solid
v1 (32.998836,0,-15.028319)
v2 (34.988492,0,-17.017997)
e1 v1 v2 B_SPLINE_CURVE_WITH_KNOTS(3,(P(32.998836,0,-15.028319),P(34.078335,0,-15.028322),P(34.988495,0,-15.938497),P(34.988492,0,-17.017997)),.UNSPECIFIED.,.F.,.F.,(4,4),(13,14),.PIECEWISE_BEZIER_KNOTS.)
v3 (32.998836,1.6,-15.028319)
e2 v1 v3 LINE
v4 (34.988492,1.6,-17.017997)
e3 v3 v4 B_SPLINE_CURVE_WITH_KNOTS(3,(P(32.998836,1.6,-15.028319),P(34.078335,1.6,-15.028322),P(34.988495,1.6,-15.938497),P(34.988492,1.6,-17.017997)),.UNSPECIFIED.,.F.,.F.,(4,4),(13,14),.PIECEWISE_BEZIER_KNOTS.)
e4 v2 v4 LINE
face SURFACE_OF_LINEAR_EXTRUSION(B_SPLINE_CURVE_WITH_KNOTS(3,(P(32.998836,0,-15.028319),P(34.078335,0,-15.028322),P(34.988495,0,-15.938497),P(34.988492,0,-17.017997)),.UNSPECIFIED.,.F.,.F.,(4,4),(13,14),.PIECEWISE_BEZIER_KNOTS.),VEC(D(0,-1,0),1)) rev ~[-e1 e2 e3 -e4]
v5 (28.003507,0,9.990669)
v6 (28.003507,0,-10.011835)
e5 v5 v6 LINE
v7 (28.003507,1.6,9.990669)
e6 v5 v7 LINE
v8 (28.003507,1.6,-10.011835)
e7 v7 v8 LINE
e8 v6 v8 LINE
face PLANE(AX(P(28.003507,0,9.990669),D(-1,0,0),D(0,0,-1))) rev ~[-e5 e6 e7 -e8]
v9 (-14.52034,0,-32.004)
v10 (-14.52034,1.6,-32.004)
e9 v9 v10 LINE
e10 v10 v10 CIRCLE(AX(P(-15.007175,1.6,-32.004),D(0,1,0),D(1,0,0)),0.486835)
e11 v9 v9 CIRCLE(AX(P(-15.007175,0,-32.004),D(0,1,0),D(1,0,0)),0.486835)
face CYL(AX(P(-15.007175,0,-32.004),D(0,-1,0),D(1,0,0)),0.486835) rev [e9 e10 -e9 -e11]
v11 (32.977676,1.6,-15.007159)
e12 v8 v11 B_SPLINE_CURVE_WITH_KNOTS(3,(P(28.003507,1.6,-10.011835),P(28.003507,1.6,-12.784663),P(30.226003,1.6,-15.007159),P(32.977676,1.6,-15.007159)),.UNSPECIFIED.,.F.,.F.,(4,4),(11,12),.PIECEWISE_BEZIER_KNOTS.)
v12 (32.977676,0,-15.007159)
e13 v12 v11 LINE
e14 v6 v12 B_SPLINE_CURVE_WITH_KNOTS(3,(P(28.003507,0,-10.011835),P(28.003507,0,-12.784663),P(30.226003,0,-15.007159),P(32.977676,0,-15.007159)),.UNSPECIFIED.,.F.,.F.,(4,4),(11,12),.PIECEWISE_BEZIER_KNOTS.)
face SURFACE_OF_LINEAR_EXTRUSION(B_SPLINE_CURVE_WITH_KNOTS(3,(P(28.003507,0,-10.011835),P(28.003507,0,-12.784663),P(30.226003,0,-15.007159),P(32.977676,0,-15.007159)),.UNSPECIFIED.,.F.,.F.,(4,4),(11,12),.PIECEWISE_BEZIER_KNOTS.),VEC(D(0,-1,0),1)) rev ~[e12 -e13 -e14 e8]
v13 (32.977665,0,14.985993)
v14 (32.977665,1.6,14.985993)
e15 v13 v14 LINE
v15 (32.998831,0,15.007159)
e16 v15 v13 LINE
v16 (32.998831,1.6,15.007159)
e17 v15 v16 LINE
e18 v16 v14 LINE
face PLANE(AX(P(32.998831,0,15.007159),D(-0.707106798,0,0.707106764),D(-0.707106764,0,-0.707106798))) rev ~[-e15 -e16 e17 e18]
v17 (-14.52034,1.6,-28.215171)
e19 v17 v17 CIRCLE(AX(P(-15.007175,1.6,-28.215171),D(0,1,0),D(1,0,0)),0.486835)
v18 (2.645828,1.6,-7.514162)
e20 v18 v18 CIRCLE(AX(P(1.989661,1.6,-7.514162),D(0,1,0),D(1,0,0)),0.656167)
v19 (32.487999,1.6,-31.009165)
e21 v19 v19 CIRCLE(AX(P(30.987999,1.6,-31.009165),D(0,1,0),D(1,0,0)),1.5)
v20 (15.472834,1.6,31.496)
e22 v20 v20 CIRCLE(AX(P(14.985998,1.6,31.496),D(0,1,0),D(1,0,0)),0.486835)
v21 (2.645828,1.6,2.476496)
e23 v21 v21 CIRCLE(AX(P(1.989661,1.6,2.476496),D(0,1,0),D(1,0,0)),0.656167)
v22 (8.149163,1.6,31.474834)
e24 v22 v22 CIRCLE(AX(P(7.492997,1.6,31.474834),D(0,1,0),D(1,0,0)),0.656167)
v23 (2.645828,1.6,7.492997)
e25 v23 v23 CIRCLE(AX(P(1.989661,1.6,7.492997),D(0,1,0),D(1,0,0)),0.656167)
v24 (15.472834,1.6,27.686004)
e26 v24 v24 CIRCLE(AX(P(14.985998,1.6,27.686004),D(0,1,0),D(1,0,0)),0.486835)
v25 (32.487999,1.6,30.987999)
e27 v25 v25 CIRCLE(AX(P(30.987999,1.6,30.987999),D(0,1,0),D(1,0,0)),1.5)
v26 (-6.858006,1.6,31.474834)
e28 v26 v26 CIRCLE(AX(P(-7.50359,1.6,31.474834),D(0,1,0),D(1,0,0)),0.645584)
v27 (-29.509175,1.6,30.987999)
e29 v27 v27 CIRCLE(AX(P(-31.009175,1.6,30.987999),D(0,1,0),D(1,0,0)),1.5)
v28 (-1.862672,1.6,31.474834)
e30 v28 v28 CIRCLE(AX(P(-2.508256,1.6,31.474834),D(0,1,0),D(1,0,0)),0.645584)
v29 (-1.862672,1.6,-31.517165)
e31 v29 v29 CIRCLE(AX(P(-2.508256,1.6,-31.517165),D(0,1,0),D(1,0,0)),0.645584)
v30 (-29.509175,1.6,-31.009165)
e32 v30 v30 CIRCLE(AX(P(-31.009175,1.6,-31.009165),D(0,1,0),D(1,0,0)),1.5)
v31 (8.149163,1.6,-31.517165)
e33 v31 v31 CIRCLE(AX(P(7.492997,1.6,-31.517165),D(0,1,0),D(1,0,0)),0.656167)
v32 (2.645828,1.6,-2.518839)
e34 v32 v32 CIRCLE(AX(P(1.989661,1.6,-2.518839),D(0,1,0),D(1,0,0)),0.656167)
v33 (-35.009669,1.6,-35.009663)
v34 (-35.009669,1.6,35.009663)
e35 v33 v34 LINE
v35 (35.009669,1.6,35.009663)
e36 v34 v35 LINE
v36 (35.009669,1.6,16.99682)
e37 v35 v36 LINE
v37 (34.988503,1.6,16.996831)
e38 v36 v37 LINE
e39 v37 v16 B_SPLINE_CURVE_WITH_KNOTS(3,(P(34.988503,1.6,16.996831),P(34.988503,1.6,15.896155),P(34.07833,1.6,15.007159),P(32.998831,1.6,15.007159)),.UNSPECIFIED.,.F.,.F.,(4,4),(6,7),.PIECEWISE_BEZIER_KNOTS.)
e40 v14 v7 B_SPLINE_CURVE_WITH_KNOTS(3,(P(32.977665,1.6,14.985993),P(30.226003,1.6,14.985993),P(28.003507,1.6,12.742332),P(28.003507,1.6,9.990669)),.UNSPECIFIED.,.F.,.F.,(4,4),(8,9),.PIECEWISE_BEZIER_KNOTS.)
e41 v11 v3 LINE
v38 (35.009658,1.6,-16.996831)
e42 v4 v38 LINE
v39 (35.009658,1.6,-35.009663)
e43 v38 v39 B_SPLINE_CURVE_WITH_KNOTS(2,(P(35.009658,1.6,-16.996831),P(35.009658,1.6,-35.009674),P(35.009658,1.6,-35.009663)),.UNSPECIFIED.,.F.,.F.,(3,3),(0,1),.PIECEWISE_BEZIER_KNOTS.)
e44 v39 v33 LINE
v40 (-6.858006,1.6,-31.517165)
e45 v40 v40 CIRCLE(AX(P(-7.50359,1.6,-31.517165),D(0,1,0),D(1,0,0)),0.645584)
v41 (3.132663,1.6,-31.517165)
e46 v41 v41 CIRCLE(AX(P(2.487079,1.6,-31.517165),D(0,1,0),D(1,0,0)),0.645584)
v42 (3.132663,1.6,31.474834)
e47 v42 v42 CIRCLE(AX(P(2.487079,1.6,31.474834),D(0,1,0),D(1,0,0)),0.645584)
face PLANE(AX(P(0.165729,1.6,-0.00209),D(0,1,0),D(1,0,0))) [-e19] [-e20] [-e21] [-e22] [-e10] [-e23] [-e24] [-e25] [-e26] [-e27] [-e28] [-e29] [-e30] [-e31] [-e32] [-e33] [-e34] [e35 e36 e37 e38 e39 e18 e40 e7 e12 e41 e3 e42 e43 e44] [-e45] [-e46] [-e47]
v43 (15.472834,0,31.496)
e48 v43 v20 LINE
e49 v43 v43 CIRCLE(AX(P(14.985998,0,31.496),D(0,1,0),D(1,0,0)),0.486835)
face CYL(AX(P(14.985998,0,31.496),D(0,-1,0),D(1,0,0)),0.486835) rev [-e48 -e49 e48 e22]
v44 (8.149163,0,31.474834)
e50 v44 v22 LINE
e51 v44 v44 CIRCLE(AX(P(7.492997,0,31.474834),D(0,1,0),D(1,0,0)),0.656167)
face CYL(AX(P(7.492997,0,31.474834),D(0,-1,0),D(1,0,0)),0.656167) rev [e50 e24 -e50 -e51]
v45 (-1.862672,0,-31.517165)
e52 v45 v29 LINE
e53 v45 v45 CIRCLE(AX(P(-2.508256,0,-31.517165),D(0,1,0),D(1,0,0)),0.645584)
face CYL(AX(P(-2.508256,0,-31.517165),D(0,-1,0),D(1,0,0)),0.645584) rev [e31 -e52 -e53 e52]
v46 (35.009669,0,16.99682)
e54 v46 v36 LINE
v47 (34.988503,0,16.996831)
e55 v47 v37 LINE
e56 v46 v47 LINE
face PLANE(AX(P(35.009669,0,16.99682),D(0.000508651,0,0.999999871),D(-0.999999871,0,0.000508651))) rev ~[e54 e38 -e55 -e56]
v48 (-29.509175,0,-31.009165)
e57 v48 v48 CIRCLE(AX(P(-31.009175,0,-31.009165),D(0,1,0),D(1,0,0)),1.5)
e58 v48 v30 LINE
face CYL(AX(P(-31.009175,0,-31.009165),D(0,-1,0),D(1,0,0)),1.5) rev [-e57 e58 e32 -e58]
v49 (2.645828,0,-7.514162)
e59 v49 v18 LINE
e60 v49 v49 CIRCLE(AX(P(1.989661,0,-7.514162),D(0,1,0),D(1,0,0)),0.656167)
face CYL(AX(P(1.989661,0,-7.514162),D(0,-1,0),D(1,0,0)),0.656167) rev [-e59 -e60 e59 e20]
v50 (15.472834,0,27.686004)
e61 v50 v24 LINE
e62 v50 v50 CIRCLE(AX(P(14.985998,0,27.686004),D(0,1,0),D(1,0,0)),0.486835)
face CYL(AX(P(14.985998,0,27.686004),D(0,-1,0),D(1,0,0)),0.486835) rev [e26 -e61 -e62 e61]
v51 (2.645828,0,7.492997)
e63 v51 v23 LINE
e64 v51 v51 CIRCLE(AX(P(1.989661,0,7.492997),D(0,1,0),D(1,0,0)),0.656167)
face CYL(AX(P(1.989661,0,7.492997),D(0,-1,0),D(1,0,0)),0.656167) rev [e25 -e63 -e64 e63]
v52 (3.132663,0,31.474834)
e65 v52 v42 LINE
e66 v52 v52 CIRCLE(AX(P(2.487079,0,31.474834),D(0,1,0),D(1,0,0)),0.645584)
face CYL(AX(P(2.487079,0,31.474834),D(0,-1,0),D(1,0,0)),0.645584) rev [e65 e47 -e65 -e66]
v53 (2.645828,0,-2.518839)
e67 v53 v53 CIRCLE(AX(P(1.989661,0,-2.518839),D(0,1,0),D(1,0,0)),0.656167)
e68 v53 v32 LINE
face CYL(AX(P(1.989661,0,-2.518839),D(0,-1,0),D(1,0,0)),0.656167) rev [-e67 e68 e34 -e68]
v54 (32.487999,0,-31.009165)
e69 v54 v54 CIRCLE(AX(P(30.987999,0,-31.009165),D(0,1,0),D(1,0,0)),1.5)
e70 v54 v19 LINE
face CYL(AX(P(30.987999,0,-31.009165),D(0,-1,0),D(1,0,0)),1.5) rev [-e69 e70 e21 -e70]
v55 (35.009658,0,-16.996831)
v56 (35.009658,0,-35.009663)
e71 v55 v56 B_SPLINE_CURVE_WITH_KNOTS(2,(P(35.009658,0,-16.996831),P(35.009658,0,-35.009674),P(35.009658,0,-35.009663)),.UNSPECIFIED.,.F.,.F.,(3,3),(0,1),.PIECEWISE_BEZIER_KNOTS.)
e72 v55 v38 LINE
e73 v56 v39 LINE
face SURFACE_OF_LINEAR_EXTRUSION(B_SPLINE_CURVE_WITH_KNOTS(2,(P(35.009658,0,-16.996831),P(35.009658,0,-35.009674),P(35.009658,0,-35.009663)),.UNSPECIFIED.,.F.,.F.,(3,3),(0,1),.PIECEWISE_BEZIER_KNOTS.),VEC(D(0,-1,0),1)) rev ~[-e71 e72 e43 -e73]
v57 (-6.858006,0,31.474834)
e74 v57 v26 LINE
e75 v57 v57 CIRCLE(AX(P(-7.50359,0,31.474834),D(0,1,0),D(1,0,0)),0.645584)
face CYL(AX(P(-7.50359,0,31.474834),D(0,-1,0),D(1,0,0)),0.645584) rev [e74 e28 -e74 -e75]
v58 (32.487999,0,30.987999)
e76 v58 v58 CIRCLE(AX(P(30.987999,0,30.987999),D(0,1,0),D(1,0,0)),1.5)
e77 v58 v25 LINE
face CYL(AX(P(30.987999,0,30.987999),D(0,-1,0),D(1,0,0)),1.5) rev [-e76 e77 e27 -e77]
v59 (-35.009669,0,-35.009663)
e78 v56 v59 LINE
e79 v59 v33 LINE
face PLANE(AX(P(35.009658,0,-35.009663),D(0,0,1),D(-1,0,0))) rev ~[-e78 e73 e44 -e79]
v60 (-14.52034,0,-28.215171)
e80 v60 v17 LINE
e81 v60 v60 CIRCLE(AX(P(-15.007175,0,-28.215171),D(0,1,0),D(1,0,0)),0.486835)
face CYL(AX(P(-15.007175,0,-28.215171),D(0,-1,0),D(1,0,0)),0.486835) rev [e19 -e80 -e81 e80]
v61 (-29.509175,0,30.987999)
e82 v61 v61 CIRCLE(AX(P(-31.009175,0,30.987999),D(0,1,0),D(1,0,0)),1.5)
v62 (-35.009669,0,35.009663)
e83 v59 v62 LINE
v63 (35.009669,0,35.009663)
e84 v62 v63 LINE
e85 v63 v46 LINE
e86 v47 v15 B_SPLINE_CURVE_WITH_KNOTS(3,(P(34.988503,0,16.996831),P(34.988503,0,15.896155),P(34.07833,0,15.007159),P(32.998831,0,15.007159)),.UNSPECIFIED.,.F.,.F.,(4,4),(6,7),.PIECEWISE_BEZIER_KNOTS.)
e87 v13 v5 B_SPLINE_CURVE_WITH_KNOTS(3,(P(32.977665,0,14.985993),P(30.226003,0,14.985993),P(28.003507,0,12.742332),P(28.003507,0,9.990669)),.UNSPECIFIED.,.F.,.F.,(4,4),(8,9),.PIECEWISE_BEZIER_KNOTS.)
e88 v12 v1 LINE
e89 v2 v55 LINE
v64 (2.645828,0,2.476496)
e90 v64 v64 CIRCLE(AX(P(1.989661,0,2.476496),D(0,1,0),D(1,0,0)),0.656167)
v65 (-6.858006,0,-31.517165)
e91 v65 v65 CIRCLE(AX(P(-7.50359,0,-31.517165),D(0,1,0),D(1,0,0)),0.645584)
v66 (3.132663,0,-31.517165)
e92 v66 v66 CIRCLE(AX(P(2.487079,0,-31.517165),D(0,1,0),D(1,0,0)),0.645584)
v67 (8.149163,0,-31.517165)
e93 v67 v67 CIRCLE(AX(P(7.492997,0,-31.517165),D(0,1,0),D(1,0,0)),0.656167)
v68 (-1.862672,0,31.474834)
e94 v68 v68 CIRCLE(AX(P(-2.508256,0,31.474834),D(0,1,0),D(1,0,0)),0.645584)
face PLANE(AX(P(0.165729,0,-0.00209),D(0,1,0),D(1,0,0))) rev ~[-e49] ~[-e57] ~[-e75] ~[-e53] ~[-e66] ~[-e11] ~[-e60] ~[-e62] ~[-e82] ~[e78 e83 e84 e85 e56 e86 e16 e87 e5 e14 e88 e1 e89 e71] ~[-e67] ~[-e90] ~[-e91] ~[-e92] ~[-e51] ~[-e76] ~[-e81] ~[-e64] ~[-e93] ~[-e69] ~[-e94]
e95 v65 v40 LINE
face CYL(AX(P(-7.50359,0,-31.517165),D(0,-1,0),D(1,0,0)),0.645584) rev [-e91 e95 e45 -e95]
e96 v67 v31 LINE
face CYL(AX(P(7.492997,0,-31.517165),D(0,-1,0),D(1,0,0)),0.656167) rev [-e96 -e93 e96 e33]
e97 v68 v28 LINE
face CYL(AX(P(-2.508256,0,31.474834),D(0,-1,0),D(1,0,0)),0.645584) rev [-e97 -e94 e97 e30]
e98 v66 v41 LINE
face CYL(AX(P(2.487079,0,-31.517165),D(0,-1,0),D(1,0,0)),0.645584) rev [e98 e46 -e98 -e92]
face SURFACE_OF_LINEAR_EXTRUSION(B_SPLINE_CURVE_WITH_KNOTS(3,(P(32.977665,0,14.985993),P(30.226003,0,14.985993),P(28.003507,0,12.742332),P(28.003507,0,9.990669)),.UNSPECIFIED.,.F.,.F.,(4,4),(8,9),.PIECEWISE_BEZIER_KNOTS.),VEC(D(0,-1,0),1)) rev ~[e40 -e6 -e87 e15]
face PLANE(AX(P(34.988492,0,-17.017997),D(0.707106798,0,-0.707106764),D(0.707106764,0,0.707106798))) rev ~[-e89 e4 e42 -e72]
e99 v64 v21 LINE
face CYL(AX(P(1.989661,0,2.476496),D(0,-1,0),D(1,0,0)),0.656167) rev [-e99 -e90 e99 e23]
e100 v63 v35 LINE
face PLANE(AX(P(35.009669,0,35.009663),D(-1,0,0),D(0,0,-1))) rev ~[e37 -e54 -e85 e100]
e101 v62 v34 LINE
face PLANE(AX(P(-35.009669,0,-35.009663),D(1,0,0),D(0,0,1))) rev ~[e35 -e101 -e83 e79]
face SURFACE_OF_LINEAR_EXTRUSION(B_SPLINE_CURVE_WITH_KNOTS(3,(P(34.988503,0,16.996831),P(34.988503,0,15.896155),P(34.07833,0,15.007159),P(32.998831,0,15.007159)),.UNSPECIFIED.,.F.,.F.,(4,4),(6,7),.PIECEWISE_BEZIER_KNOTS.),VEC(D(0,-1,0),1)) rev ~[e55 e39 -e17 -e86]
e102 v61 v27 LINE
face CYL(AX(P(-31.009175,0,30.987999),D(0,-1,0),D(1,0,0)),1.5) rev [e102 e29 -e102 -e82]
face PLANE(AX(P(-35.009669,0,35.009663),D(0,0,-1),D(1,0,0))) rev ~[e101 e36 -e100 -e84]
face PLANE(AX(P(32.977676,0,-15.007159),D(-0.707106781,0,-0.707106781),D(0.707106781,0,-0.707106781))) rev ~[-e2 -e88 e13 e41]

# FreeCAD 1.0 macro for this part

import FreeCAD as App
import Part
import Sketcher

V = App.Vector

doc = App.newDocument("Part")
body = doc.addObject("PartDesign::Body", "Body")

# Sketch on XZ plane
sketch1 = body.newObject("Sketcher::SketchObject", "Sketch")
sketch1.AttachmentSupport = (doc.getObject("XZ_Plane"), [""])
sketch1.MapMode = "FlatFace"
sketch1.addGeometry(Part.LineSegment(V(35.009658, -35.009663, 0), V(-35.009669, -35.009663, 0)), False)
sketch1.addGeometry(Part.LineSegment(V(-35.009669, -35.009663, 0), V(-35.009669, 35.009663, 0)), False)
sketch1.addGeometry(Part.LineSegment(V(-35.009669, 35.009663, 0), V(35.009669, 35.009663, 0)), False)
sketch1.addGeometry(Part.LineSegment(V(35.009669, 35.009663, 0), V(35.009669, 16.99682, 0)), False)
sketch1.addGeometry(Part.LineSegment(V(35.009669, 16.99682, 0), V(34.988503, 16.996831, 0)), False)
sketch1.addGeometry(Part.BSplineCurve([V(34.988503, 16.996831, 0), V(34.988503, 15.896155, 0), V(34.07833, 15.007159, 0), V(32.998831, 15.007159, 0)], [4, 4], [6, 7], False, 3, [1, 1, 1, 1], False), False)
sketch1.addGeometry(Part.LineSegment(V(32.998831, 15.007159, 0), V(32.977665, 14.985993, 0)), False)
sketch1.addGeometry(Part.BSplineCurve([V(32.977665, 14.985993, 0), V(30.226003, 14.985993, 0), V(28.003507, 12.742332, 0), V(28.003507, 9.990669, 0)], [4, 4], [8, 9], False, 3, [1, 1, 1, 1], False), False)
sketch1.addGeometry(Part.LineSegment(V(28.003507, 9.990669, 0), V(28.003507, -10.011835, 0)), False)
sketch1.addGeometry(Part.BSplineCurve([V(28.003507, -10.011835, 0), V(28.003507, -12.784663, 0), V(30.226003, -15.007159, 0), V(32.977676, -15.007159, 0)], [4, 4], [11, 12], False, 3, [1, 1, 1, 1], False), False)
sketch1.addGeometry(Part.LineSegment(V(32.977676, -15.007159, 0), V(32.998836, -15.028319, 0)), False)
sketch1.addGeometry(Part.BSplineCurve([V(32.998836, -15.028319, 0), V(34.078335, -15.028322, 0), V(34.988495, -15.938497, 0), V(34.988492, -17.017997, 0)], [4, 4], [13, 14], False, 3, [1, 1, 1, 1], False), False)
sketch1.addGeometry(Part.LineSegment(V(34.988492, -17.017997, 0), V(35.009658, -16.996831, 0)), False)
sketch1.addGeometry(Part.BSplineCurve([V(35.009658, -16.996831, 0), V(35.009658, -35.009674, 0), V(35.009658, -35.009663, 0)], [3, 3], [0, 1], False, 2, [1, 1, 1], False), False)
sketch1.addGeometry(Part.Circle(V(-31.009175, 30.987999, 0), V(0, 0, 1), 1.5), False)
sketch1.addGeometry(Part.Circle(V(-7.50359, 31.474834, 0), V(0, 0, 1), 0.645584), False)
sketch1.addGeometry(Part.Circle(V(-2.508256, 31.474834, 0), V(0, 0, 1), 0.645584), False)
sketch1.addGeometry(Part.Circle(V(2.487079, 31.474834, 0), V(0, 0, 1), 0.645584), False)
sketch1.addGeometry(Part.Circle(V(7.492997, 31.474834, 0), V(0, 0, 1), 0.656167), False)
sketch1.addGeometry(Part.Circle(V(14.985998, 31.496, 0), V(0, 0, 1), 0.486835), False)
sketch1.addGeometry(Part.Circle(V(14.985998, 27.686004, 0), V(0, 0, 1), 0.486835), False)
sketch1.addGeometry(Part.Circle(V(30.987999, 30.987999, 0), V(0, 0, 1), 1.5), False)
sketch1.addGeometry(Part.Circle(V(1.989661, 7.492997, 0), V(0, 0, 1), 0.656167), False)
sketch1.addGeometry(Part.Circle(V(1.989661, 2.476496, 0), V(0, 0, 1), 0.656167), False)
sketch1.addGeometry(Part.Circle(V(-31.009175, -31.009165, 0), V(0, 0, 1), 1.5), False)
sketch1.addGeometry(Part.Circle(V(-15.007175, -28.215171, 0), V(0, 0, 1), 0.486835), False)
sketch1.addGeometry(Part.Circle(V(-15.007175, -32.004, 0), V(0, 0, 1), 0.486835), False)
sketch1.addGeometry(Part.Circle(V(-7.50359, -31.517165, 0), V(0, 0, 1), 0.645584), False)
sketch1.addGeometry(Part.Circle(V(-2.508256, -31.517165, 0), V(0, 0, 1), 0.645584), False)
sketch1.addGeometry(Part.Circle(V(1.989661, -2.518839, 0), V(0, 0, 1), 0.656167), False)
sketch1.addGeometry(Part.Circle(V(1.989661, -7.514162, 0), V(0, 0, 1), 0.656167), False)
sketch1.addGeometry(Part.Circle(V(2.487079, -31.517165, 0), V(0, 0, 1), 0.645584), False)
sketch1.addGeometry(Part.Circle(V(7.492997, -31.517165, 0), V(0, 0, 1), 0.656167), False)
sketch1.addGeometry(Part.Circle(V(30.987999, -31.009165, 0), V(0, 0, 1), 1.5), False)
sketch1.addConstraint(Sketcher.Constraint("Block", 5))
sketch1.addConstraint(Sketcher.Constraint("Block", 7))
sketch1.addConstraint(Sketcher.Constraint("Block", 9))
sketch1.addConstraint(Sketcher.Constraint("Block", 11))
sketch1.addConstraint(Sketcher.Constraint("Block", 13))
sketch1.addConstraint(Sketcher.Constraint("Coincident", 0, 2, 1, 1))
sketch1.addConstraint(Sketcher.Constraint("Coincident", 1, 2, 2, 1))
sketch1.addConstraint(Sketcher.Constraint("Coincident", 2, 2, 3, 1))
sketch1.addConstraint(Sketcher.Constraint("Coincident", 3, 2, 4, 1))
sketch1.addConstraint(Sketcher.Constraint("Coincident", 4, 2, 5, 1))
sketch1.addConstraint(Sketcher.Constraint("Coincident", 5, 2, 6, 1))
sketch1.addConstraint(Sketcher.Constraint("Coincident", 6, 2, 7, 1))
sketch1.addConstraint(Sketcher.Constraint("Coincident", 7, 2, 8, 1))
sketch1.addConstraint(Sketcher.Constraint("Coincident", 8, 2, 9, 1))
sketch1.addConstraint(Sketcher.Constraint("Coincident", 9, 2, 10, 1))
sketch1.addConstraint(Sketcher.Constraint("Coincident", 10, 2, 11, 1))
sketch1.addConstraint(Sketcher.Constraint("Coincident", 11, 2, 12, 1))
sketch1.addConstraint(Sketcher.Constraint("Coincident", 12, 2, 13, 1))
sketch1.addConstraint(Sketcher.Constraint("Coincident", 13, 2, 0, 1))
sketch1.addConstraint(Sketcher.Constraint("Horizontal", 0))
sketch1.addConstraint(Sketcher.Constraint("Vertical", 1))
sketch1.addConstraint(Sketcher.Constraint("Horizontal", 2))
sketch1.addConstraint(Sketcher.Constraint("Vertical", 3))
sketch1.addConstraint(Sketcher.Constraint("Equal", 15, 16))
sketch1.addConstraint(Sketcher.Constraint("Equal", 16, 17))
sketch1.addConstraint(Sketcher.Constraint("Equal", 19, 20))
sketch1.addConstraint(Sketcher.Constraint("Equal", 14, 21))
sketch1.addConstraint(Sketcher.Constraint("Equal", 18, 22))
sketch1.addConstraint(Sketcher.Constraint("Equal", 22, 23))
sketch1.addConstraint(Sketcher.Constraint("Equal", 21, 24))
sketch1.addConstraint(Sketcher.Constraint("Equal", 20, 25))
sketch1.addConstraint(Sketcher.Constraint("Equal", 25, 26))
sketch1.addConstraint(Sketcher.Constraint("Equal", 17, 27))
sketch1.addConstraint(Sketcher.Constraint("Equal", 27, 28))
sketch1.addConstraint(Sketcher.Constraint("Equal", 23, 29))
sketch1.addConstraint(Sketcher.Constraint("Equal", 29, 30))
sketch1.addConstraint(Sketcher.Constraint("Equal", 28, 31))
sketch1.addConstraint(Sketcher.Constraint("Equal", 30, 32))
sketch1.addConstraint(Sketcher.Constraint("Equal", 24, 33))
sketch1.addConstraint(Sketcher.Constraint("Symmetric", 0, 2, 2, 2, -1, 1))
sketch1.addConstraint(Sketcher.Constraint("Horizontal", 15, 3, 16, 3))
sketch1.addConstraint(Sketcher.Constraint("Horizontal", 16, 3, 17, 3))
sketch1.addConstraint(Sketcher.Constraint("Horizontal", 17, 3, 18, 3))
sketch1.addConstraint(Sketcher.Constraint("Horizontal", 14, 3, 21, 3))
sketch1.addConstraint(Sketcher.Constraint("Horizontal", 27, 3, 28, 3))
sketch1.addConstraint(Sketcher.Constraint("Horizontal", 28, 3, 31, 3))
sketch1.addConstraint(Sketcher.Constraint("Horizontal", 31, 3, 32, 3))
sketch1.addConstraint(Sketcher.Constraint("Horizontal", 24, 3, 33, 3))
sketch1.addConstraint(Sketcher.Constraint("Vertical", 19, 3, 20, 3))
sketch1.addConstraint(Sketcher.Constraint("Vertical", 22, 3, 23, 3))
sketch1.addConstraint(Sketcher.Constraint("Vertical", 14, 3, 24, 3))
sketch1.addConstraint(Sketcher.Constraint("Vertical", 25, 3, 26, 3))
sketch1.addConstraint(Sketcher.Constraint("Vertical", 15, 3, 27, 3))
sketch1.addConstraint(Sketcher.Constraint("Vertical", 16, 3, 28, 3))
sketch1.addConstraint(Sketcher.Constraint("Vertical", 23, 3, 29, 3))
sketch1.addConstraint(Sketcher.Constraint("Vertical", 29, 3, 30, 3))
sketch1.addConstraint(Sketcher.Constraint("Vertical", 17, 3, 31, 3))
sketch1.addConstraint(Sketcher.Constraint("Vertical", 18, 3, 32, 3))
sketch1.addConstraint(Sketcher.Constraint("Vertical", 21, 3, 33, 3))
sketch1.addConstraint(Sketcher.Constraint("Equal", 0, 1))
sketch1.addConstraint(Sketcher.Constraint("Diameter", 14, 3.0))
sketch1.addConstraint(Sketcher.Constraint("Diameter", 19, 0.97367))
sketch1.addConstraint(Sketcher.Constraint("Diameter", 15, 1.291168))
sketch1.addConstraint(Sketcher.Constraint("Diameter", 18, 1.312334))
sketch1.addConstraint(Sketcher.Constraint("DistanceY", -1, 1, 14, 3, 30.987999))
sketch1.addConstraint(Sketcher.Constraint("DistanceX", -1, 1, 19, 3, 14.985998))
sketch1.addConstraint(Sketcher.Constraint("DistanceY", -1, 1, 19, 3, 31.496))
sketch1.addConstraint(Sketcher.Constraint("DistanceX", -1, 1, 21, 3, 30.987999))
sketch1.addConstraint(Sketcher.Constraint("DistanceY", 26, 3, -1, 1, 32.004))
sketch1.addConstraint(Sketcher.Constraint("DistanceX", 18, 3, 19, 3, 7.493002))
sketch1.addConstraint(Sketcher.Constraint("DistanceY", 24, 3, 15, 3, 62.483998))
sketch1.addConstraint(Sketcher.Constraint("DistanceX", 24, 3, 25, 3, 16.002))
sketch1.addConstraint(Sketcher.Constraint("DistanceY", 27, 3, 24, 3, 0.508001))
sketch1.addConstraint(Sketcher.Constraint("DistanceY", 23, 3, 22, 3, 5.0165))
sketch1.addConstraint(Sketcher.Constraint("DistanceY", 0, 2, 24, 3, 4.000499))
sketch1.addConstraint(Sketcher.Constraint("DistanceY", 3, 2, 3, 1, 18.012843))
sketch1.addConstraint(Sketcher.Constraint("DistanceX", 15, 3, -1, 1, 7.50359))
sketch1.addConstraint(Sketcher.Constraint("DistanceX", -1, 1, 17, 3, 2.487079))
sketch1.addConstraint(Sketcher.Constraint("DistanceX", -1, 1, 22, 3, 1.989661))
sketch1.addConstraint(Sketcher.Constraint("DistanceY", 25, 3, -1, 1, 28.215171))
sketch1.addConstraint(Sketcher.Constraint("DistanceY", 29, 3, -1, 1, 2.518839))
sketch1.addConstraint(Sketcher.Constraint("DistanceX", 14, 3, 16, 3, 28.50092))
sketch1.addConstraint(Sketcher.Constraint("DistanceX", 14, 3, 18, 3, 38.502172))
sketch1.addConstraint(Sketcher.Constraint("DistanceY", 20, 3, 18, 3, 3.78883))
sketch1.addConstraint(Sketcher.Constraint("DistanceY", 24, 3, 23, 3, 33.485661))
sketch1.addConstraint(Sketcher.Constraint("DistanceY", 30, 3, 23, 3, 9.990658))
pad1 = body.newObject("PartDesign::Pad", "Pad")
pad1.Profile = sketch1
pad1.Length = 1.6
pad1.Reversed = True

doc.recompute()
